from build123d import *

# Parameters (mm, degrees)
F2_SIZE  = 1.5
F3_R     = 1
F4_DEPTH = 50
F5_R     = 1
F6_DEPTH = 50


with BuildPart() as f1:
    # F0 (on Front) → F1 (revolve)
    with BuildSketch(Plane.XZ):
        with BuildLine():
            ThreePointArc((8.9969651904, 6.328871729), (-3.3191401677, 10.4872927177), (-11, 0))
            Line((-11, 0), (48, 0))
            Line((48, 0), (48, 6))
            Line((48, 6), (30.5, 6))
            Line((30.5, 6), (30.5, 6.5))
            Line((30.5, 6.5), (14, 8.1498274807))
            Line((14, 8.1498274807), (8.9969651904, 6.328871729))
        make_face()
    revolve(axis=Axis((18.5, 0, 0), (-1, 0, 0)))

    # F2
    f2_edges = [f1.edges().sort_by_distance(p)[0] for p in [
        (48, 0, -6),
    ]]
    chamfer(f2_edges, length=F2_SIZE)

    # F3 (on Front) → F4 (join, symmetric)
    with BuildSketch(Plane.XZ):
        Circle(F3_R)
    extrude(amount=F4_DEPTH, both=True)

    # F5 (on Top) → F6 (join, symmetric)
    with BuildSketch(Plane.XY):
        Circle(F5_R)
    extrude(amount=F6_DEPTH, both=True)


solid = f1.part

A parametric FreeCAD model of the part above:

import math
import FreeCAD as App
import Part
import Sketcher

V = App.Vector
Q = App.Units.Quantity


def edges_at(feature, points):
    """Names of the edges that pass closest to the given points."""
    edges = feature.Shape.Edges
    near = lambda p: min(range(len(edges)), key=lambda i: edges[i].distToShape(Part.Vertex(*p))[0])
    return sorted({f"Edge{near(p) + 1}" for p in points})

doc = App.newDocument("Part")
body = doc.addObject("PartDesign::Body", "Body")

sketch1 = body.newObject("Sketcher::SketchObject", "Sketch")
sketch1.AttachmentSupport = (doc.getObject("XZ_Plane"), [""])
sketch1.MapMode = "FlatFace"
sketch1.addGeometry(Part.ArcOfCircle(Part.Circle(V(0, 0, 0), V(0, 0, 1), 11), math.radians(35), math.radians(180)), False)
sketch1.addGeometry(Part.LineSegment(V(-11, 0, 0), V(48, 0, 0)), False)
sketch1.addGeometry(Part.LineSegment(V(48, 0, 0), V(48, 6, 0)), False)
sketch1.addGeometry(Part.LineSegment(V(48, 6, 0), V(30.5, 6, 0)), False)
sketch1.addGeometry(Part.LineSegment(V(30.5, 6, 0), V(30.5, 6.5, 0)), False)
sketch1.addGeometry(Part.LineSegment(V(30.5, 6.5, 0), V(14, 8.1, 0)), False)
sketch1.addGeometry(Part.LineSegment(V(14, 8.1, 0), V(9, 6.3, 0)), False)
sketch1.addConstraint(Sketcher.Constraint("Coincident", 0, 2, 1, 1))
sketch1.addConstraint(Sketcher.Constraint("Coincident", 1, 2, 2, 1))
sketch1.addConstraint(Sketcher.Constraint("Coincident", 2, 2, 3, 1))
sketch1.addConstraint(Sketcher.Constraint("Coincident", 3, 2, 4, 1))
sketch1.addConstraint(Sketcher.Constraint("Coincident", 4, 2, 5, 1))
sketch1.addConstraint(Sketcher.Constraint("Coincident", 5, 2, 6, 1))
sketch1.addConstraint(Sketcher.Constraint("Coincident", 6, 2, 0, 1))
sketch1.addConstraint(Sketcher.Constraint("Horizontal", 1))
sketch1.addConstraint(Sketcher.Constraint("Vertical", 2))
sketch1.addConstraint(Sketcher.Constraint("Horizontal", 3))
sketch1.addConstraint(Sketcher.Constraint("Vertical", 4))
sketch1.addConstraint(Sketcher.Constraint("Coincident", 0, 3, -1, 1))
sketch1.addConstraint(Sketcher.Constraint("PointOnObject", 0, 2, -1))
sketch1.addConstraint(Sketcher.Constraint("Radius", 0, 11.0))
sketch1.addConstraint(Sketcher.Constraint("DistanceX", 1, 1, 1, 2, 59.0))
sketch1.addConstraint(Sketcher.Constraint("DistanceY", 2, 1, 2, 2, 6.0))
sketch1.addConstraint(Sketcher.Constraint("Angle", 6, Q("-160 deg")))
sketch1.addConstraint(Sketcher.Constraint("DistanceX", 3, 2, 3, 1, 17.5))
sketch1.addConstraint(Sketcher.Constraint("DistanceY", 4, 1, 4, 2, 0.5))
sketch1.addConstraint(Sketcher.Constraint("DistanceX", -1, 1, 5, 2, 14.0))
sketch1.addConstraint(Sketcher.Constraint("Angle", 5, Q("174.29 deg")))
revolution = body.newObject("PartDesign::Revolution", "Revolution")
revolution.Profile = sketch1
revolution.ReferenceAxis = (sketch1, ["H_Axis"])
revolution.Angle = 360
doc.recompute()

chamfer = body.newObject("PartDesign::Chamfer", "Chamfer")
chamfer.Base = (revolution, edges_at(revolution, [(48, 0, -6)]))
chamfer.Size = 1.5

sketch2 = body.newObject("Sketcher::SketchObject", "Sketch001")
sketch2.AttachmentSupport = (doc.getObject("XZ_Plane"), [""])
sketch2.MapMode = "FlatFace"
sketch2.addGeometry(Part.Circle(V(0, 0, 0), V(0, 0, 1), 1), False)
sketch2.addConstraint(Sketcher.Constraint("Coincident", 0, 3, -1, 1))
sketch2.addConstraint(Sketcher.Constraint("Diameter", 0, 2.0))
pad1 = body.newObject("PartDesign::Pad", "Pad")
pad1.Profile = sketch2
pad1.Length = 100
pad1.Midplane = True

sketch3 = body.newObject("Sketcher::SketchObject", "Sketch002")
sketch3.AttachmentSupport = (doc.getObject("XY_Plane"), [""])
sketch3.MapMode = "FlatFace"
sketch3.addGeometry(Part.Circle(V(0, 0, 0), V(0, 0, 1), 1), False)
sketch3.addConstraint(Sketcher.Constraint("Coincident", 0, 3, -1, 1))
sketch3.addConstraint(Sketcher.Constraint("Diameter", 0, 2.0))
pad2 = body.newObject("PartDesign::Pad", "Pad001")
pad2.Profile = sketch3
pad2.Length = 100
pad2.Midplane = True

doc.recompute()
